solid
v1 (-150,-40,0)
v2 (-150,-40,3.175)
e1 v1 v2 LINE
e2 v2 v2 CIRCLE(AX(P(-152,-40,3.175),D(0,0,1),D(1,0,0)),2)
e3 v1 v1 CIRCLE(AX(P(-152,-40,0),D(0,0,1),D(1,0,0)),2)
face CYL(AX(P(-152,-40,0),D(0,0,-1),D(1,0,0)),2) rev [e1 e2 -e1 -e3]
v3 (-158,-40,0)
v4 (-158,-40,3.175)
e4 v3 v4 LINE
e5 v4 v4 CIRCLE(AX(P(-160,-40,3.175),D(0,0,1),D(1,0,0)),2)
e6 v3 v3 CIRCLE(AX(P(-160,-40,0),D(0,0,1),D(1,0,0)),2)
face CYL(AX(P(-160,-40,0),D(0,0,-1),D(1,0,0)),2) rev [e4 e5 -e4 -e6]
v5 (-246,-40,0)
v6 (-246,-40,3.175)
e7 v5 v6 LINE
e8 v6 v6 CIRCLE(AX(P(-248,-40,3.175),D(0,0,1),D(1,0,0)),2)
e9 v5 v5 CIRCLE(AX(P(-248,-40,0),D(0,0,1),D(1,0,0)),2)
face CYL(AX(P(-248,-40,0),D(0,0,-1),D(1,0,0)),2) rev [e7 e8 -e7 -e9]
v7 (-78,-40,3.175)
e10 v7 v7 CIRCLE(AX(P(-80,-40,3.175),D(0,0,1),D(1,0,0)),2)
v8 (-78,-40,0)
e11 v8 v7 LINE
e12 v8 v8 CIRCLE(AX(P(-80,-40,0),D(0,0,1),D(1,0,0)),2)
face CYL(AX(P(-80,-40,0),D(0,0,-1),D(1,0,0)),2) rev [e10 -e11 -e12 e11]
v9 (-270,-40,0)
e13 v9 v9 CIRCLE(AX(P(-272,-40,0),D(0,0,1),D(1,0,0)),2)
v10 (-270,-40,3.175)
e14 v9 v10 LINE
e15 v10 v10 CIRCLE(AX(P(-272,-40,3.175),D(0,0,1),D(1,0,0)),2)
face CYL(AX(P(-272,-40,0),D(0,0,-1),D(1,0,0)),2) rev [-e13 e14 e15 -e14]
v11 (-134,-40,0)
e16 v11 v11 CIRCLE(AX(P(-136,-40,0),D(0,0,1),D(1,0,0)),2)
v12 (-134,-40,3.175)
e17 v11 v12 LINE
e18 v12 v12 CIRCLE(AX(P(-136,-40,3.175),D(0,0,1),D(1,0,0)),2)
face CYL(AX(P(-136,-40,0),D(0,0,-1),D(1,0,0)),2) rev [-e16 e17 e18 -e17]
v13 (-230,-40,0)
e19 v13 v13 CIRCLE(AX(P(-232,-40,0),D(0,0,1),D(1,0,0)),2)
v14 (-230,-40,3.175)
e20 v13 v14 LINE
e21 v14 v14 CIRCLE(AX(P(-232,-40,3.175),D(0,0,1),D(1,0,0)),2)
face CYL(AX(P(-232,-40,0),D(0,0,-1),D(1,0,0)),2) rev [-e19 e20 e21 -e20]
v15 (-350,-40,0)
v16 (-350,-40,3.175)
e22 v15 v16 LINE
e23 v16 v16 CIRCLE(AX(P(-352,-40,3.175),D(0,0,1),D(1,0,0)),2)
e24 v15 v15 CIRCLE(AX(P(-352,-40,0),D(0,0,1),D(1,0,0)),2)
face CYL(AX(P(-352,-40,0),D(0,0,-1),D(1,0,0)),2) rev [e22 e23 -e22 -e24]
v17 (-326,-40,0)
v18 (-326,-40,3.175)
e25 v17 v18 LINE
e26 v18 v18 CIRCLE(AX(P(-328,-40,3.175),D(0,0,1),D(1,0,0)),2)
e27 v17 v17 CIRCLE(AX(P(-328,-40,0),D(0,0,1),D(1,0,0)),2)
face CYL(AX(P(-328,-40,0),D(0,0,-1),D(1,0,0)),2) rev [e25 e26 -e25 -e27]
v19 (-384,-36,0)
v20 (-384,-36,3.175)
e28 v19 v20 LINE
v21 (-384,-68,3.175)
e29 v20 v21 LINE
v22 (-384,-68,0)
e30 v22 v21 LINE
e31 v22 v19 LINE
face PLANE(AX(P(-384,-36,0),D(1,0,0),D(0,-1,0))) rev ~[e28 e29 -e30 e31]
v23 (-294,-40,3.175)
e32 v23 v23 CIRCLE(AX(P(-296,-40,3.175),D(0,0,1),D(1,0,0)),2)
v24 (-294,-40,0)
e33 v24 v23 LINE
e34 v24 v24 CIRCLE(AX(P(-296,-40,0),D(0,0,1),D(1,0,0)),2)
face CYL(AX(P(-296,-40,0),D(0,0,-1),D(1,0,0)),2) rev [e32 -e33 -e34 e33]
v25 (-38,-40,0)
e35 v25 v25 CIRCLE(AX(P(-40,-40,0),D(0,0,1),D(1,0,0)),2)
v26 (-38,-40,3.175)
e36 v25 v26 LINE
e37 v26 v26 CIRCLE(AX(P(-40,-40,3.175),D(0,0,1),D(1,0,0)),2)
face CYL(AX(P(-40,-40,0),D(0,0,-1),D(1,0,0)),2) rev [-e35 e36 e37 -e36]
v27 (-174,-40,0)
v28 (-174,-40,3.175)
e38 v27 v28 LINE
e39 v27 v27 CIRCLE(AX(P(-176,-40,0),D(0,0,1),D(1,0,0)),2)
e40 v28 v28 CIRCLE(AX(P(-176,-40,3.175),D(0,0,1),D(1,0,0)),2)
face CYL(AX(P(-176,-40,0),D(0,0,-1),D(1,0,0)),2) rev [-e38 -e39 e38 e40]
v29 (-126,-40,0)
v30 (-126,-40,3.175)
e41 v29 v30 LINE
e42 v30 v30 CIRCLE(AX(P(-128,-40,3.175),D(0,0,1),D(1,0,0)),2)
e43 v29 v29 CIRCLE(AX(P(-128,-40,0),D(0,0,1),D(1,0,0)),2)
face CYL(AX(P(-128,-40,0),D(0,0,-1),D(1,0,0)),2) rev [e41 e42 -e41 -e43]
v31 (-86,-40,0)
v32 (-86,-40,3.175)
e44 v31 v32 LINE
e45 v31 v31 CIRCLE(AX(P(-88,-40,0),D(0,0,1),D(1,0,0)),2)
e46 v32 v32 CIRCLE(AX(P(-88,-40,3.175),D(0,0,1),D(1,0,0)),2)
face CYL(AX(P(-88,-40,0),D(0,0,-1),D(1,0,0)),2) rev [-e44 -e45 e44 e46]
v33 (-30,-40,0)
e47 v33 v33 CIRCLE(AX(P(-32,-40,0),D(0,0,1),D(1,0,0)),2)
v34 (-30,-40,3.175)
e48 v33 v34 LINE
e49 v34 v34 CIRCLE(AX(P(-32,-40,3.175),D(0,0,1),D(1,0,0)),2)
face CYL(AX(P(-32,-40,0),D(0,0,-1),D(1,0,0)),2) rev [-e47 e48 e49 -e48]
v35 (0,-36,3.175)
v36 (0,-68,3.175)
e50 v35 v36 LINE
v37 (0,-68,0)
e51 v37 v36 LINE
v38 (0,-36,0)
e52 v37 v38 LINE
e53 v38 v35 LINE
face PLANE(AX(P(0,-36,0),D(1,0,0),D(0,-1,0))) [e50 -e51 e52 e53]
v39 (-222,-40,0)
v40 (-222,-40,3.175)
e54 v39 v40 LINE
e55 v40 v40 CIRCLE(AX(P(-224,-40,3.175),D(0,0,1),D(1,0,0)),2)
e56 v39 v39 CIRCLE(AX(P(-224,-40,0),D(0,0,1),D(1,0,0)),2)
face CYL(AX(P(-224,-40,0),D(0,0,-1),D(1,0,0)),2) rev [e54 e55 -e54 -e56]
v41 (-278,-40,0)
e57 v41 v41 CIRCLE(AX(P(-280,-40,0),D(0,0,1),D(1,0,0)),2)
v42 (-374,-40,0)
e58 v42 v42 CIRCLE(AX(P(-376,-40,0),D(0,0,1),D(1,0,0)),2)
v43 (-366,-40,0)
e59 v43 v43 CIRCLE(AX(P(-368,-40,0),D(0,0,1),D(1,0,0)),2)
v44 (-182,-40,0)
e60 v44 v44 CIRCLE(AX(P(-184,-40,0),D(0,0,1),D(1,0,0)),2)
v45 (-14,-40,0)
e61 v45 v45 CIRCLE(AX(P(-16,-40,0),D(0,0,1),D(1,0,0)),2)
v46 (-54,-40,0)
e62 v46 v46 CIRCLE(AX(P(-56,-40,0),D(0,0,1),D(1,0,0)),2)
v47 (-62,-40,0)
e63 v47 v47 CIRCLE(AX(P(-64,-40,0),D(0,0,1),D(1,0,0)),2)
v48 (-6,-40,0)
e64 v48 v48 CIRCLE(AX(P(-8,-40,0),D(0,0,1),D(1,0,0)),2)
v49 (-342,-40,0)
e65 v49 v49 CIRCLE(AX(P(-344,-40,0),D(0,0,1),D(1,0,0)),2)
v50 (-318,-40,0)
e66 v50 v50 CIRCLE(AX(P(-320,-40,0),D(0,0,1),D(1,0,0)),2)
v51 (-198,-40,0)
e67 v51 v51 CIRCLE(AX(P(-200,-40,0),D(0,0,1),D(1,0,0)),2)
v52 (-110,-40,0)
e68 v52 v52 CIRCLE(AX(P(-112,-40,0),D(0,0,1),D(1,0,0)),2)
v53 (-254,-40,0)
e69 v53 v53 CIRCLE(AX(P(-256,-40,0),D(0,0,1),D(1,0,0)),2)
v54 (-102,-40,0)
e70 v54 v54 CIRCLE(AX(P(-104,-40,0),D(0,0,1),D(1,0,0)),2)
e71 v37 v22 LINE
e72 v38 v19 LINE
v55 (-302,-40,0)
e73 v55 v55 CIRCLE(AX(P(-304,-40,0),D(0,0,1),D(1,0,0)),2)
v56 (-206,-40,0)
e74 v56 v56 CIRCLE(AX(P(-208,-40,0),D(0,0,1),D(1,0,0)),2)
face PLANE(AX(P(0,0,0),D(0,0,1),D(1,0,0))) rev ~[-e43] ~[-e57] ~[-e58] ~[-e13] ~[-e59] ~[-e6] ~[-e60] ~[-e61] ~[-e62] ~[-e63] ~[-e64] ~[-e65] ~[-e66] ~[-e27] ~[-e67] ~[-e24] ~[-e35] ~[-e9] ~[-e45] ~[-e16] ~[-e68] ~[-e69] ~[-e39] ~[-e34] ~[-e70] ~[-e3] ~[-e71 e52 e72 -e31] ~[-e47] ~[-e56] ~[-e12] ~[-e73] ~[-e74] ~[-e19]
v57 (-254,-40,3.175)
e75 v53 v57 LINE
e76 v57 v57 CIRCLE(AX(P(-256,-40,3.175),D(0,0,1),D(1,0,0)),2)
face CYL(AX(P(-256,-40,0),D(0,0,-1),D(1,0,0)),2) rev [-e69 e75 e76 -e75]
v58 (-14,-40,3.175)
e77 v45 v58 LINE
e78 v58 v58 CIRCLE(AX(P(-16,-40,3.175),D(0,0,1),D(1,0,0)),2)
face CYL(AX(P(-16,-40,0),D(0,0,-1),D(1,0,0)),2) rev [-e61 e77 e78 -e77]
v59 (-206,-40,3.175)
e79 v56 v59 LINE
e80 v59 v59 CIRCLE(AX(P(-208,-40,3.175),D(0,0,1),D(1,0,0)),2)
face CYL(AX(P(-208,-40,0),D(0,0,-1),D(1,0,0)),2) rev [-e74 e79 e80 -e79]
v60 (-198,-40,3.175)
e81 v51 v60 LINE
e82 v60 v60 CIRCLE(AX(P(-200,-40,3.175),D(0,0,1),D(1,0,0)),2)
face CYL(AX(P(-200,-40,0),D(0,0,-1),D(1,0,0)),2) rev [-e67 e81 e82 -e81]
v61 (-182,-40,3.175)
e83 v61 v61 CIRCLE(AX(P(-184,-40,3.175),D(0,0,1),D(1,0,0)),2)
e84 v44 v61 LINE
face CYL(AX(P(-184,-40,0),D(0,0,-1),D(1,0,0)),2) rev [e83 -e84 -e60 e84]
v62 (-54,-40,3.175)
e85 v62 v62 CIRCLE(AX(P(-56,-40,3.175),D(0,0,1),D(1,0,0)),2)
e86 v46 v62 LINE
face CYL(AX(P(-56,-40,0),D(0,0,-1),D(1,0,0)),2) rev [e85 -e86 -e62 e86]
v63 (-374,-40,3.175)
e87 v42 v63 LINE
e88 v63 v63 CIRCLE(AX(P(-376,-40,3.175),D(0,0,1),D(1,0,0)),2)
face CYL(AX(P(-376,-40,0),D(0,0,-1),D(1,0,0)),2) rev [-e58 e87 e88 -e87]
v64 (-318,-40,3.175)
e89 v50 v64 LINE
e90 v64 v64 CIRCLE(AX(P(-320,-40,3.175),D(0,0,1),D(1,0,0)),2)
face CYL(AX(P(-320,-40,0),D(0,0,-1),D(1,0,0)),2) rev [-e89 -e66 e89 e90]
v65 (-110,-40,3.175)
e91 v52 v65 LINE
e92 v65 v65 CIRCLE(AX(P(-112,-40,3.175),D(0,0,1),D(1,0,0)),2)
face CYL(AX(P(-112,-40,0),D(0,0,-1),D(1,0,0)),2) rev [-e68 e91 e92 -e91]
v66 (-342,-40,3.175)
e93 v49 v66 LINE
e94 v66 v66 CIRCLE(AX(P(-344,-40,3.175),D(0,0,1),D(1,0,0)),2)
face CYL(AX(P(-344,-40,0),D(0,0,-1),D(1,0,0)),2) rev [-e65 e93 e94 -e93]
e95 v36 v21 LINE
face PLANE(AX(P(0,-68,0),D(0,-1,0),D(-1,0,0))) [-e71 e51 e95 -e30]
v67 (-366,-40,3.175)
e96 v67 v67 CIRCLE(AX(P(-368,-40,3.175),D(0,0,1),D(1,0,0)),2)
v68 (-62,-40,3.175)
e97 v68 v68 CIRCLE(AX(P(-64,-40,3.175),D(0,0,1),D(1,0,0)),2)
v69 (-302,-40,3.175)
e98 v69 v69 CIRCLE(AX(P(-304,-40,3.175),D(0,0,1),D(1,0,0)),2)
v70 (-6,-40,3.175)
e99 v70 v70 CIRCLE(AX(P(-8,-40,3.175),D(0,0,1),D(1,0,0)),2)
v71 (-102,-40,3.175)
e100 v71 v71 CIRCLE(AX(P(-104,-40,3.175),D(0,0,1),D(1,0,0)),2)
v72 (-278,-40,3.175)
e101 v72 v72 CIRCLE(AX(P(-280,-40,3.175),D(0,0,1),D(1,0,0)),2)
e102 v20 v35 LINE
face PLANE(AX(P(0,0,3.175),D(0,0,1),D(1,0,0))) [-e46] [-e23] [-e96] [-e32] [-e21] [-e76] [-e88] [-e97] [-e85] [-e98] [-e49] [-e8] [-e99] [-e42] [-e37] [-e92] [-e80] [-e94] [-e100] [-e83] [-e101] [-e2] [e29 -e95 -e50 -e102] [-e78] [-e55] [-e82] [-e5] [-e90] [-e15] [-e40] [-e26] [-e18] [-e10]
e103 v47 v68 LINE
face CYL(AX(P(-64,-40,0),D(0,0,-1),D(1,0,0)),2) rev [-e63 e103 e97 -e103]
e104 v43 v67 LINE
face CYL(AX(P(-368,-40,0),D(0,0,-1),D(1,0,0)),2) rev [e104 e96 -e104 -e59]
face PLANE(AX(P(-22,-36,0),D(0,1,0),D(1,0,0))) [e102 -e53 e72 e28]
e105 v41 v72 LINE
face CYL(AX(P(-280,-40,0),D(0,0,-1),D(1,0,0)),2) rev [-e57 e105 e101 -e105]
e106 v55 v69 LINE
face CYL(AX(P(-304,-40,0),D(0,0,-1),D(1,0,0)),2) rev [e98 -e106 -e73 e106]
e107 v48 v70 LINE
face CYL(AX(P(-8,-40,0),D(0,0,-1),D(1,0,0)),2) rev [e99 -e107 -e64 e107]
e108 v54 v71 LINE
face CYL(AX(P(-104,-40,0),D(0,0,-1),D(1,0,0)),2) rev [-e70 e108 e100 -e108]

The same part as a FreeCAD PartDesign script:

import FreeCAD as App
import Part
import Sketcher

V = App.Vector

doc = App.newDocument("Part")
body = doc.addObject("PartDesign::Body", "Body")

# Sketch on XY plane
sketch1 = body.newObject("Sketcher::SketchObject", "Sketch")
sketch1.AttachmentSupport = (doc.getObject("XY_Plane"), [""])
sketch1.MapMode = "FlatFace"
sketch1.addGeometry([
    Part.LineSegment(V(0, -36, 0), V(-384, -36, 0)),  # 0
    Part.LineSegment(V(-384, -36, 0), V(-384, -68, 0)),  # 1
    Part.LineSegment(V(-384, -68, 0), V(0, -68, 0)),  # 2
    Part.LineSegment(V(0, -68, 0), V(0, -36, 0)),  # 3
    Part.Circle(V(-376, -40, 0), V(0, 0, 1), 2),  # 4
    Part.Circle(V(-368, -40, 0), V(0, 0, 1), 2),  # 5
    Part.Circle(V(-352, -40, 0), V(0, 0, 1), 2),  # 6
    Part.Circle(V(-344, -40, 0), V(0, 0, 1), 2),  # 7
    Part.Circle(V(-328, -40, 0), V(0, 0, 1), 2),  # 8
    Part.Circle(V(-320, -40, 0), V(0, 0, 1), 2),  # 9
    Part.Circle(V(-304, -40, 0), V(0, 0, 1), 2),  # 10
    Part.Circle(V(-296, -40, 0), V(0, 0, 1), 2),  # 11
    Part.Circle(V(-280, -40, 0), V(0, 0, 1), 2),  # 12
    Part.Circle(V(-272, -40, 0), V(0, 0, 1), 2),  # 13
    Part.Circle(V(-256, -40, 0), V(0, 0, 1), 2),  # 14
    Part.Circle(V(-248, -40, 0), V(0, 0, 1), 2),  # 15
    Part.Circle(V(-232, -40, 0), V(0, 0, 1), 2),  # 16
    Part.Circle(V(-224, -40, 0), V(0, 0, 1), 2),  # 17
    Part.Circle(V(-208, -40, 0), V(0, 0, 1), 2),  # 18
    Part.Circle(V(-200, -40, 0), V(0, 0, 1), 2),  # 19
    Part.Circle(V(-184, -40, 0), V(0, 0, 1), 2),  # 20
    Part.Circle(V(-176, -40, 0), V(0, 0, 1), 2),  # 21
    Part.Circle(V(-160, -40, 0), V(0, 0, 1), 2),  # 22
    Part.Circle(V(-152, -40, 0), V(0, 0, 1), 2),  # 23
    Part.Circle(V(-136, -40, 0), V(0, 0, 1), 2),  # 24
    Part.Circle(V(-128, -40, 0), V(0, 0, 1), 2),  # 25
    Part.Circle(V(-112, -40, 0), V(0, 0, 1), 2),  # 26
    Part.Circle(V(-104, -40, 0), V(0, 0, 1), 2),  # 27
    Part.Circle(V(-88, -40, 0), V(0, 0, 1), 2),  # 28
    Part.Circle(V(-80, -40, 0), V(0, 0, 1), 2),  # 29
    Part.Circle(V(-64, -40, 0), V(0, 0, 1), 2),  # 30
    Part.Circle(V(-56, -40, 0), V(0, 0, 1), 2),  # 31
    Part.Circle(V(-40, -40, 0), V(0, 0, 1), 2),  # 32
    Part.Circle(V(-32, -40, 0), V(0, 0, 1), 2),  # 33
    Part.Circle(V(-16, -40, 0), V(0, 0, 1), 2),  # 34
    Part.Circle(V(-8, -40, 0), V(0, 0, 1), 2),  # 35
], False)
sketch1.addConstraint([
    Sketcher.Constraint("Coincident", 0, 2, 1, 1),
    Sketcher.Constraint("Coincident", 1, 2, 2, 1),
    Sketcher.Constraint("Coincident", 2, 2, 3, 1),
    Sketcher.Constraint("Coincident", 3, 2, 0, 1),
    Sketcher.Constraint("Horizontal", 0),
    Sketcher.Constraint("Vertical", 1),
    Sketcher.Constraint("Horizontal", 2),
    Sketcher.Constraint("Vertical", 3),
    Sketcher.Constraint("Equal", 4, 5),
    Sketcher.Constraint("Equal", 5, 6),
    Sketcher.Constraint("Equal", 6, 7),
    Sketcher.Constraint("Equal", 7, 8),
    Sketcher.Constraint("Equal", 8, 9),
    Sketcher.Constraint("Equal", 9, 10),
    Sketcher.Constraint("Equal", 10, 11),
    Sketcher.Constraint("Equal", 11, 12),
    Sketcher.Constraint("Equal", 12, 13),
    Sketcher.Constraint("Equal", 13, 14),
    Sketcher.Constraint("Equal", 14, 15),
    Sketcher.Constraint("Equal", 15, 16),
    Sketcher.Constraint("Equal", 16, 17),
    Sketcher.Constraint("Equal", 17, 18),
    Sketcher.Constraint("Equal", 18, 19),
    Sketcher.Constraint("Equal", 19, 20),
    Sketcher.Constraint("Equal", 20, 21),
    Sketcher.Constraint("Equal", 21, 22),
    Sketcher.Constraint("Equal", 22, 23),
    Sketcher.Constraint("Equal", 23, 24),
    Sketcher.Constraint("Equal", 24, 25),
    Sketcher.Constraint("Equal", 25, 26),
    Sketcher.Constraint("Equal", 26, 27),
    Sketcher.Constraint("Equal", 27, 28),
    Sketcher.Constraint("Equal", 28, 29),
    Sketcher.Constraint("Equal", 29, 30),
    Sketcher.Constraint("Equal", 30, 31),
    Sketcher.Constraint("Equal", 31, 32),
    Sketcher.Constraint("Equal", 32, 33),
    Sketcher.Constraint("Equal", 33, 34),
    Sketcher.Constraint("Equal", 34, 35),
    Sketcher.Constraint("PointOnObject", 2, 2, -2),
    Sketcher.Constraint("Horizontal", 4, 3, 5, 3),
    Sketcher.Constraint("Horizontal", 5, 3, 6, 3),
    Sketcher.Constraint("Horizontal", 6, 3, 7, 3),
    Sketcher.Constraint("Horizontal", 7, 3, 8, 3),
    Sketcher.Constraint("Horizontal", 8, 3, 9, 3),
    Sketcher.Constraint("Horizontal", 9, 3, 10, 3),
    Sketcher.Constraint("Horizontal", 10, 3, 11, 3),
    Sketcher.Constraint("Horizontal", 11, 3, 12, 3),
    Sketcher.Constraint("Horizontal", 12, 3, 13, 3),
    Sketcher.Constraint("Horizontal", 13, 3, 14, 3),
    Sketcher.Constraint("Horizontal", 14, 3, 15, 3),
    Sketcher.Constraint("Horizontal", 15, 3, 16, 3),
    Sketcher.Constraint("Horizontal", 16, 3, 17, 3),
    Sketcher.Constraint("Horizontal", 17, 3, 18, 3),
    Sketcher.Constraint("Horizontal", 18, 3, 19, 3),
    Sketcher.Constraint("Horizontal", 19, 3, 20, 3),
    Sketcher.Constraint("Horizontal", 20, 3, 21, 3),
    Sketcher.Constraint("Horizontal", 21, 3, 22, 3),
    Sketcher.Constraint("Horizontal", 22, 3, 23, 3),
    Sketcher.Constraint("Horizontal", 23, 3, 24, 3),
    Sketcher.Constraint("Horizontal", 24, 3, 25, 3),
    Sketcher.Constraint("Horizontal", 25, 3, 26, 3),
    Sketcher.Constraint("Horizontal", 26, 3, 27, 3),
    Sketcher.Constraint("Horizontal", 27, 3, 28, 3),
    Sketcher.Constraint("Horizontal", 28, 3, 29, 3),
    Sketcher.Constraint("Horizontal", 29, 3, 30, 3),
    Sketcher.Constraint("Horizontal", 30, 3, 31, 3),
    Sketcher.Constraint("Horizontal", 31, 3, 32, 3),
    Sketcher.Constraint("Horizontal", 32, 3, 33, 3),
    Sketcher.Constraint("Horizontal", 33, 3, 34, 3),
    Sketcher.Constraint("Horizontal", 34, 3, 35, 3),
    Sketcher.Constraint("Diameter", 4, 4.0),
    Sketcher.Constraint("DistanceY", 4, 3, 0, 2, 4.0),
    Sketcher.Constraint("DistanceX", 0, 2, 0, 1, 384.0),
    Sketcher.Constraint("DistanceY", 1, 2, 1, 1, 32.0),
    Sketcher.Constraint("DistanceX", 4, 3, -1, 1, 376.0),
    Sketcher.Constraint("DistanceY", 4, 3, -1, 1, 40.0),
    Sketcher.Constraint("DistanceX", 5, 3, -1, 1, 368.0),
    Sketcher.Constraint("DistanceX", 6, 3, -1, 1, 352.0),
    Sketcher.Constraint("DistanceX", 7, 3, -1, 1, 344.0),
    Sketcher.Constraint("DistanceX", 8, 3, -1, 1, 328.0),
    Sketcher.Constraint("DistanceX", 9, 3, -1, 1, 320.0),
    Sketcher.Constraint("DistanceX", 10, 3, -1, 1, 304.0),
    Sketcher.Constraint("DistanceX", 11, 3, -1, 1, 296.0),
    Sketcher.Constraint("DistanceX", 12, 3, -1, 1, 280.0),
    Sketcher.Constraint("DistanceX", 13, 3, -1, 1, 272.0),
    Sketcher.Constraint("DistanceX", 14, 3, -1, 1, 256.0),
    Sketcher.Constraint("DistanceX", 15, 3, -1, 1, 248.0),
    Sketcher.Constraint("DistanceX", 16, 3, -1, 1, 232.0),
    Sketcher.Constraint("DistanceX", 17, 3, -1, 1, 224.0),
    Sketcher.Constraint("DistanceX", 18, 3, -1, 1, 208.0),
    Sketcher.Constraint("DistanceX", 19, 3, -1, 1, 200.0),
    Sketcher.Constraint("DistanceX", 20, 3, -1, 1, 184.0),
    Sketcher.Constraint("DistanceX", 21, 3, -1, 1, 176.0),
    Sketcher.Constraint("DistanceX", 22, 3, -1, 1, 160.0),
    Sketcher.Constraint("DistanceX", 23, 3, -1, 1, 152.0),
    Sketcher.Constraint("DistanceX", 24, 3, -1, 1, 136.0),
    Sketcher.Constraint("DistanceX", 25, 3, -1, 1, 128.0),
    Sketcher.Constraint("DistanceX", 26, 3, -1, 1, 112.0),
    Sketcher.Constraint("DistanceX", 27, 3, -1, 1, 104.0),
    Sketcher.Constraint("DistanceX", 28, 3, -1, 1, 88.0),
    Sketcher.Constraint("DistanceX", 29, 3, -1, 1, 80.0),
    Sketcher.Constraint("DistanceX", 30, 3, -1, 1, 64.0),
    Sketcher.Constraint("DistanceX", 31, 3, -1, 1, 56.0),
    Sketcher.Constraint("DistanceX", 32, 3, -1, 1, 40.0),
    Sketcher.Constraint("DistanceX", 33, 3, -1, 1, 32.0),
    Sketcher.Constraint("DistanceX", 34, 3, -1, 1, 16.0),
    Sketcher.Constraint("DistanceX", 35, 3, -1, 1, 8.0),
])
pad1 = body.newObject("PartDesign::Pad", "Pad")
pad1.Profile = sketch1
pad1.Length = 3.175

doc.recompute()
